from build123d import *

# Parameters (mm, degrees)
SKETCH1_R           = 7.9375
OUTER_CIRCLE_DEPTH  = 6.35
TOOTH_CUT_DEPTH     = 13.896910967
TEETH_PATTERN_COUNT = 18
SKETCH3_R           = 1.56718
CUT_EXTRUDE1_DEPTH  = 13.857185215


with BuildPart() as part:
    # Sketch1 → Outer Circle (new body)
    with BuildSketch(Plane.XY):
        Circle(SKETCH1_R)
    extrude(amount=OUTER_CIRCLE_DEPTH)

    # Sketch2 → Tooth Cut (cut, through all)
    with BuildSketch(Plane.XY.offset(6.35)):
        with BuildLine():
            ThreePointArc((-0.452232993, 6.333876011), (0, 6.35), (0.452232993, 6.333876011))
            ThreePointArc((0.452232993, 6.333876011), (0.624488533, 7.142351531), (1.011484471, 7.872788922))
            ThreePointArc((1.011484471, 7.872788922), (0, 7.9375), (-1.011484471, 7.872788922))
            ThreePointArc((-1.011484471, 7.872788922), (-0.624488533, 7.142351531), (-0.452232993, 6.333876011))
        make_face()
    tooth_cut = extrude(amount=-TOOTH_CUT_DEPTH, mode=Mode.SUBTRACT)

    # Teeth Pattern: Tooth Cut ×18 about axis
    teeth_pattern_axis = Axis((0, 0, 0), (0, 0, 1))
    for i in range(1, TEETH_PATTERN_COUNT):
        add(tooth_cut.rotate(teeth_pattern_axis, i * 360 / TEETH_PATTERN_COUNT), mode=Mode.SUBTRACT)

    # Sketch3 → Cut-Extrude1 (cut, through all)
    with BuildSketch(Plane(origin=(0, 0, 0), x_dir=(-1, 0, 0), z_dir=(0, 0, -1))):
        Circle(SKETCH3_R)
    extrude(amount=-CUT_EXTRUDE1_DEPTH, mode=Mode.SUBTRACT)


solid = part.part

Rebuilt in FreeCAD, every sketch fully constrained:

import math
import FreeCAD as App
import Part
import Sketcher

V = App.Vector
Q = App.Units.Quantity

doc = App.newDocument("Part")
params = doc.addObject("Spreadsheet::Sheet", "Params")
for row, (alias, value) in enumerate([
    ("sketch1_diameter", "0.625 in"),
    ("pad1_length", "0.25 in"),
    ("sketch2_radius", "0.25 in"),
    ("sketch2_radius2", "0.3125 in"),
], start=1):
    params.set(f"A{row}", alias)
    params.set(f"B{row}", "=" + value)
    params.setAlias(f"B{row}", alias)

body = doc.addObject("PartDesign::Body", "Body")

# Sketch on XY plane
sketch1 = body.newObject("Sketcher::SketchObject", "Sketch")
sketch1.AttachmentSupport = (doc.getObject("XY_Plane"), [""])
sketch1.MapMode = "FlatFace"
sketch1.addGeometry(Part.Circle(V(0, 0, 0), V(0, 0, 1), 8), False)
sketch1.addConstraint(Sketcher.Constraint("Coincident", 0, 3, -1, 1))
sketch1.addConstraint(Sketcher.Constraint("Diameter", 0, Q("0.625 in")))
sketch1.setExpression("Constraints[1]", "Params.sketch1_diameter")
pad1 = body.newObject("PartDesign::Pad", "Pad")
pad1.Profile = sketch1
pad1.setExpression("Length", "Params.pad1_length")

# Sketch on XY plane
sketch2 = body.newObject("Sketcher::SketchObject", "Sketch001")
sketch2.AttachmentSupport = (doc.getObject("XY_Plane"), [""])
sketch2.MapMode = "FlatFace"
sketch2.AttachmentOffset = App.Placement(V(0, 0, 0.25 * 25.4), App.Rotation())
sketch2.addGeometry(Part.ArcOfCircle(Part.Circle(V(0, 0, 0), V(0, 0, 1), 6.4), math.radians(85.92), math.radians(94.08)), False)
sketch2.addGeometry(Part.ArcOfCircle(Part.Circle(V(3.4, 6.1, 0), V(0, 0, 1), 3), math.radians(144), math.radians(176)), False)
sketch2.addGeometry(Part.ArcOfCircle(Part.Circle(V(0, 0, 0), V(0, 0, 1), 7.9), math.radians(82.68), math.radians(97.32)), False)
sketch2.addGeometry(Part.ArcOfCircle(Part.Circle(V(-3.4, 6.1, 0), V(0, 0, 1), 3), math.radians(4), math.radians(36)), False)
sketch2.addConstraint(Sketcher.Constraint("Coincident", 0, 1, 1, 2))
sketch2.addConstraint(Sketcher.Constraint("Coincident", 1, 1, 2, 1))
sketch2.addConstraint(Sketcher.Constraint("Coincident", 2, 2, 3, 2))
sketch2.addConstraint(Sketcher.Constraint("Coincident", 3, 1, 0, 2))
sketch2.addConstraint(Sketcher.Constraint("Coincident", 0, 3, -1, 1))
sketch2.addConstraint(Sketcher.Constraint("Coincident", 2, 3, -1, 1))
sketch2.addConstraint(Sketcher.Constraint("Equal", 1, 3))
sketch2.addConstraint(Sketcher.Constraint("Symmetric", 1, 3, 3, 3, -2))
sketch2.addConstraint(Sketcher.Constraint("Radius", 0, Q("0.25 in")))
sketch2.addConstraint(Sketcher.Constraint("Radius", 2, Q("0.3125 in")))
sketch2.addConstraint(Sketcher.Constraint("Radius", 1, Q("2.990646 mm")))
sketch2.addConstraint(Sketcher.Constraint("DistanceX", 1, 1, 1, 3, Q("2.423801 mm")))
sketch2.addConstraint(Sketcher.Constraint("DistanceY", -1, 1, 1, 3, Q("6.120889 mm")))
sketch2.setExpression("Constraints[8]", "Params.sketch2_radius")
sketch2.setExpression("Constraints[9]", "Params.sketch2_radius2")
pocket1 = body.newObject("PartDesign::Pocket", "Pocket")
pocket1.Profile = sketch2
pocket1.Type = "ThroughAll"
doc.recompute()

polarpattern = body.newObject("PartDesign::PolarPattern", "PolarPattern")
polarpattern.Originals = [pocket1]
polarpattern.Axis = (doc.getObject("Z_Axis"), [""])
polarpattern.Angle = 360
polarpattern.Occurrences = 18
body.Tip = polarpattern

# Sketch on XY plane
sketch3 = body.newObject("Sketcher::SketchObject", "Sketch002")
sketch3.AttachmentSupport = (doc.getObject("XY_Plane"), [""])
sketch3.MapMode = "FlatFace"
sketch3.addGeometry(Part.Circle(V(0, 0, 0), V(0, 0, 1), 1.6), False)
sketch3.addConstraint(Sketcher.Constraint("Coincident", 0, 3, -1, 1))
sketch3.addConstraint(Sketcher.Constraint("Diameter", 0, Q("0.1234 in")))
pocket2 = body.newObject("PartDesign::Pocket", "Pocket001")
pocket2.Profile = sketch3
pocket2.Type = "ThroughAll"
pocket2.Reversed = True

doc.recompute()
